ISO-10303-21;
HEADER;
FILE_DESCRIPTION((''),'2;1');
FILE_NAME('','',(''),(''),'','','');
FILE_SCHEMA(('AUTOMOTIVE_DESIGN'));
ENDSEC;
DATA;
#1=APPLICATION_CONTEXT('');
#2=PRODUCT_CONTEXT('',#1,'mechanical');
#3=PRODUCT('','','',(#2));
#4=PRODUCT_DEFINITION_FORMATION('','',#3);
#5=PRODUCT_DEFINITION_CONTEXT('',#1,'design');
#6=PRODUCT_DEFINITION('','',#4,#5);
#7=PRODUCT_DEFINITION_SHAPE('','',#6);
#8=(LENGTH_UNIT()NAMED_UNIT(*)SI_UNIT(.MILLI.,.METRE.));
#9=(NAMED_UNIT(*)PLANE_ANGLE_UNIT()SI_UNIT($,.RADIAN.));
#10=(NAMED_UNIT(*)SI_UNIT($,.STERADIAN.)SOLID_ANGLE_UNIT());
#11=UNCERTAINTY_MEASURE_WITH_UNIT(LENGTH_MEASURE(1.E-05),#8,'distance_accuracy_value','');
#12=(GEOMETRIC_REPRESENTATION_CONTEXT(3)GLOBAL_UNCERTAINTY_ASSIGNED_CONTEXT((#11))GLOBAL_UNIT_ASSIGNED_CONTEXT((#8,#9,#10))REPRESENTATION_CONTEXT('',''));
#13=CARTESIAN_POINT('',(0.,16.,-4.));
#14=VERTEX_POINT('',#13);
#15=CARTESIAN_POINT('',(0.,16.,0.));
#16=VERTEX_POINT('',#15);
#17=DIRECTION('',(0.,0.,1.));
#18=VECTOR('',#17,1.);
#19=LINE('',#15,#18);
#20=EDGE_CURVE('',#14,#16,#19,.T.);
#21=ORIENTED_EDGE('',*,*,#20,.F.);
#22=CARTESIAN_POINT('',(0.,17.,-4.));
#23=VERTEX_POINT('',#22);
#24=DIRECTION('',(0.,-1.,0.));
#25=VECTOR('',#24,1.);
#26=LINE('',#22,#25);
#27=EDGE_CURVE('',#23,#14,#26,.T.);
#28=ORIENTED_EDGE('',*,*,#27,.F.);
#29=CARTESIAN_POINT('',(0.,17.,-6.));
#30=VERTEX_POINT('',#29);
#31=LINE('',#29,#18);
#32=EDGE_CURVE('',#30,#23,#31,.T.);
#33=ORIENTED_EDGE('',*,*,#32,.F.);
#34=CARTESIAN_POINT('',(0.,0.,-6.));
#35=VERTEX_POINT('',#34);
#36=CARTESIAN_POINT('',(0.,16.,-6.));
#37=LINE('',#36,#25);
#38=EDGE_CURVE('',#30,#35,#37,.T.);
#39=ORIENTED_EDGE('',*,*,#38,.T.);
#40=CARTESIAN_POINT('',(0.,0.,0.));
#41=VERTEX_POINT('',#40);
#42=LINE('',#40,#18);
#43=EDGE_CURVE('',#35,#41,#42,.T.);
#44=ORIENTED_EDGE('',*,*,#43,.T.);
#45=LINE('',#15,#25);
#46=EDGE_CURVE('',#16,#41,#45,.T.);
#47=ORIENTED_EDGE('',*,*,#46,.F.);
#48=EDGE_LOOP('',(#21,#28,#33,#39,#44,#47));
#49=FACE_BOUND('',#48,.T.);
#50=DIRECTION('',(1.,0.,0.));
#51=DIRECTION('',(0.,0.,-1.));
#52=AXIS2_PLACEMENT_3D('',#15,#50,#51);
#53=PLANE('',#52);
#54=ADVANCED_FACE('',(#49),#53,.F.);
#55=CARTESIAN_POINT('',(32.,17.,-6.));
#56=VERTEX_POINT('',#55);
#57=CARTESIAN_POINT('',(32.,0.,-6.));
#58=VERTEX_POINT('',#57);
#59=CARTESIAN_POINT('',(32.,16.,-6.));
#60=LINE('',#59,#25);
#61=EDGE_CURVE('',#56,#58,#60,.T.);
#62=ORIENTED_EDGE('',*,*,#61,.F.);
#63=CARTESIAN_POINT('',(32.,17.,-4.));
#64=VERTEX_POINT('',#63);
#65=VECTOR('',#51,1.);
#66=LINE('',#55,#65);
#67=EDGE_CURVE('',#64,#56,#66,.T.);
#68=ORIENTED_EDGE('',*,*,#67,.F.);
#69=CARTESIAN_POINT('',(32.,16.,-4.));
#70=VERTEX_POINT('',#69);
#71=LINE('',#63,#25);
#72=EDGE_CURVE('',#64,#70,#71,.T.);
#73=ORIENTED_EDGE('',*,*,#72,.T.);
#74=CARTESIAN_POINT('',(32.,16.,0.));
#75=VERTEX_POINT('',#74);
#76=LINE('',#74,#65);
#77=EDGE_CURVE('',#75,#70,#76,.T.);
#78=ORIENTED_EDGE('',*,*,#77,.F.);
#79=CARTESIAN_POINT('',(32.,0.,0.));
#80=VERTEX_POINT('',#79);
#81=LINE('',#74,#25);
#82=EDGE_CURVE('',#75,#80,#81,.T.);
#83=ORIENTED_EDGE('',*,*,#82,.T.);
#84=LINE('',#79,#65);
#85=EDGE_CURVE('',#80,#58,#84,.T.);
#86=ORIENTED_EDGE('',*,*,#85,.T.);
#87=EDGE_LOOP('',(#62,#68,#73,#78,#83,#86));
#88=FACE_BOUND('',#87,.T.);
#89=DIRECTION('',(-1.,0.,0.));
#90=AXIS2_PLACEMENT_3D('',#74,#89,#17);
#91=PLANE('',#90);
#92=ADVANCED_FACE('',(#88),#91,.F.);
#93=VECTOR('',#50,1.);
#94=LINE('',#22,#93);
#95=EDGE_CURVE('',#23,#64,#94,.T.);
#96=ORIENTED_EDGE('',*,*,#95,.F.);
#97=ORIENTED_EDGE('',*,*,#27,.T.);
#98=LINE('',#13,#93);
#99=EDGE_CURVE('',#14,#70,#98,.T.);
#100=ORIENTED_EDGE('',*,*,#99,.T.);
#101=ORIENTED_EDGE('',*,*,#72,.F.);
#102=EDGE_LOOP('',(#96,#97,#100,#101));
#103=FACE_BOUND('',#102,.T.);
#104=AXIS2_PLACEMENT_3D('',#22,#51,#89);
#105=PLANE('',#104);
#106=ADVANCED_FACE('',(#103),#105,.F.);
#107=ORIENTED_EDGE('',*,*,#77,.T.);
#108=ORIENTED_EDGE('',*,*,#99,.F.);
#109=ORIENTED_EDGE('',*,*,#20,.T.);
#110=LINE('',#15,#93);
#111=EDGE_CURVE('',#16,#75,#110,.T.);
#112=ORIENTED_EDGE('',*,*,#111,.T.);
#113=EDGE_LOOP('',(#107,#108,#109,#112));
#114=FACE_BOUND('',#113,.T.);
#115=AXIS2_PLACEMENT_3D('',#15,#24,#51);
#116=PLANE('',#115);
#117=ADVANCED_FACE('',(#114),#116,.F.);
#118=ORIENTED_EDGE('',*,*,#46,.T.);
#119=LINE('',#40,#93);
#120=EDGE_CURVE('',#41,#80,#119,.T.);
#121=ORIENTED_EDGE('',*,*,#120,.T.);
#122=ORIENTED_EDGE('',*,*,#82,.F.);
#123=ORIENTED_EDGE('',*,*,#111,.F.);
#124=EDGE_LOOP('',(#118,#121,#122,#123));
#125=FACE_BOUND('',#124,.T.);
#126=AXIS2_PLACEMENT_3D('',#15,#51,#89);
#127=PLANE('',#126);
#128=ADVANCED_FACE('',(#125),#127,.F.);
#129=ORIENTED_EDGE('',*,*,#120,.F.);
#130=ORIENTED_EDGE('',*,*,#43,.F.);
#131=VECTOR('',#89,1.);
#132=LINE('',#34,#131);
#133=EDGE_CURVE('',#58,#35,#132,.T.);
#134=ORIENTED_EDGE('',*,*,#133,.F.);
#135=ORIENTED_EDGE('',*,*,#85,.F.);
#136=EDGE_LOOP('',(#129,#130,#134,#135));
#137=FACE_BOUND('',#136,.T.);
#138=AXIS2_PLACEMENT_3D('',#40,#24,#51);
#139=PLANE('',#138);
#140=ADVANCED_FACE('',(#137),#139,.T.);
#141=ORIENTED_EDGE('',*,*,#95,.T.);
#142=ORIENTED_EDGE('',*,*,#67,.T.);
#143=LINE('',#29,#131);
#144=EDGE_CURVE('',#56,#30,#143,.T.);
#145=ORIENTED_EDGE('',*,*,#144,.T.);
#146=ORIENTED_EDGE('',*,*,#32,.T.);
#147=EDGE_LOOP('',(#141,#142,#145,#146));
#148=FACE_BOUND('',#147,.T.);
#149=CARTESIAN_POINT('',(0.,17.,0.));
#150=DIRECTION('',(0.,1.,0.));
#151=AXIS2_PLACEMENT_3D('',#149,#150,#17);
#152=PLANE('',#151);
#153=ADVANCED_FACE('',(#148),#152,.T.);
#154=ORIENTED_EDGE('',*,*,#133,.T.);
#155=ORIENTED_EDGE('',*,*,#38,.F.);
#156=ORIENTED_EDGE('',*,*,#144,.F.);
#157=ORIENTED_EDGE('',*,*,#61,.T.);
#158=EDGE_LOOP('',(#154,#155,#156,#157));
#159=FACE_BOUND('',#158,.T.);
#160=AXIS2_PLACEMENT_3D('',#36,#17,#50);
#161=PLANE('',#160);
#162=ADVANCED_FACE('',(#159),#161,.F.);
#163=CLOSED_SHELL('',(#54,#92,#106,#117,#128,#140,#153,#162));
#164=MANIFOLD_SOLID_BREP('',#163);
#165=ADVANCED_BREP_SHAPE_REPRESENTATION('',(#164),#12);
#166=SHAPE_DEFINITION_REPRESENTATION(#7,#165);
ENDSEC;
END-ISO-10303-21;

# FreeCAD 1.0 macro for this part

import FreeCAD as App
import Part
import Sketcher

V = App.Vector
Q = App.Units.Quantity


def add_polygon(sketch, points):
    """Adds a closed chain of lines whose ends are joined by coincident constraints."""
    first, n = sketch.GeometryCount, len(points)
    for a, b in zip(points, points[1:] + points[:1]):
        sketch.addGeometry(Part.LineSegment(App.Vector(*a, 0), App.Vector(*b, 0)), False)
    for i in range(n):
        sketch.addConstraint(Sketcher.Constraint("Coincident", first + i, 2, first + (i + 1) % n, 1))

doc = App.newDocument("Part")
body = doc.addObject("PartDesign::Body", "Body")

# Sketch on XZ plane
sketch1 = doc.addObject("Sketcher::SketchObject", "Sketch")
body.addObject(sketch1)
sketch1.AttachmentSupport = (doc.XZ_Plane, [""])
sketch1.MapMode = "FlatFace"
add_polygon(sketch1, [(0, -6), (0, 0), (32, 0), (32, -6)])  # lines 0-3
sketch1.addConstraint([
    Sketcher.Constraint("Vertical", 0),
    Sketcher.Constraint("Horizontal", 1),
    Sketcher.Constraint("Vertical", 2),
    Sketcher.Constraint("Horizontal", 3),
    Sketcher.Constraint("Coincident", 0, 2, -1, 1),
    Sketcher.Constraint("DistanceX", 1, 1, 1, 2, Q("32 mm")),
    Sketcher.Constraint("DistanceY", 0, 1, 0, 2, Q("6 mm")),
])
pad1 = doc.addObject("PartDesign::Pad", "Pad")
body.addObject(pad1)
pad1.Profile = sketch1
pad1.Length = 16
pad1.Reversed = True

# Sketch on XZ plane
sketch2 = doc.addObject("Sketcher::SketchObject", "Sketch001")
body.addObject(sketch2)
sketch2.AttachmentSupport = (doc.XZ_Plane, [""])
sketch2.MapMode = "FlatFace"
sketch2.AttachmentOffset = App.Placement(V(0, 0, -16), App.Rotation())
add_polygon(sketch2, [(0, -6), (0, -4), (32, -4), (32, -6)])  # lines 0-3
sketch2.addConstraint([
    Sketcher.Constraint("Vertical", 0),
    Sketcher.Constraint("Horizontal", 1),
    Sketcher.Constraint("Vertical", 2),
    Sketcher.Constraint("Horizontal", 3),
    Sketcher.Constraint("PointOnObject", 0, 2, -2),
    Sketcher.Constraint("DistanceX", 1, 1, 1, 2, Q("32 mm")),
    Sketcher.Constraint("DistanceY", 0, 1, 0, 2, Q("2 mm")),
    Sketcher.Constraint("DistanceY", 0, 2, -1, 1, Q("4 mm")),
])
pad2 = doc.addObject("PartDesign::Pad", "Pad001")
body.addObject(pad2)
pad2.Profile = sketch2
pad2.Length = 1
pad2.Reversed = True

doc.recompute()
